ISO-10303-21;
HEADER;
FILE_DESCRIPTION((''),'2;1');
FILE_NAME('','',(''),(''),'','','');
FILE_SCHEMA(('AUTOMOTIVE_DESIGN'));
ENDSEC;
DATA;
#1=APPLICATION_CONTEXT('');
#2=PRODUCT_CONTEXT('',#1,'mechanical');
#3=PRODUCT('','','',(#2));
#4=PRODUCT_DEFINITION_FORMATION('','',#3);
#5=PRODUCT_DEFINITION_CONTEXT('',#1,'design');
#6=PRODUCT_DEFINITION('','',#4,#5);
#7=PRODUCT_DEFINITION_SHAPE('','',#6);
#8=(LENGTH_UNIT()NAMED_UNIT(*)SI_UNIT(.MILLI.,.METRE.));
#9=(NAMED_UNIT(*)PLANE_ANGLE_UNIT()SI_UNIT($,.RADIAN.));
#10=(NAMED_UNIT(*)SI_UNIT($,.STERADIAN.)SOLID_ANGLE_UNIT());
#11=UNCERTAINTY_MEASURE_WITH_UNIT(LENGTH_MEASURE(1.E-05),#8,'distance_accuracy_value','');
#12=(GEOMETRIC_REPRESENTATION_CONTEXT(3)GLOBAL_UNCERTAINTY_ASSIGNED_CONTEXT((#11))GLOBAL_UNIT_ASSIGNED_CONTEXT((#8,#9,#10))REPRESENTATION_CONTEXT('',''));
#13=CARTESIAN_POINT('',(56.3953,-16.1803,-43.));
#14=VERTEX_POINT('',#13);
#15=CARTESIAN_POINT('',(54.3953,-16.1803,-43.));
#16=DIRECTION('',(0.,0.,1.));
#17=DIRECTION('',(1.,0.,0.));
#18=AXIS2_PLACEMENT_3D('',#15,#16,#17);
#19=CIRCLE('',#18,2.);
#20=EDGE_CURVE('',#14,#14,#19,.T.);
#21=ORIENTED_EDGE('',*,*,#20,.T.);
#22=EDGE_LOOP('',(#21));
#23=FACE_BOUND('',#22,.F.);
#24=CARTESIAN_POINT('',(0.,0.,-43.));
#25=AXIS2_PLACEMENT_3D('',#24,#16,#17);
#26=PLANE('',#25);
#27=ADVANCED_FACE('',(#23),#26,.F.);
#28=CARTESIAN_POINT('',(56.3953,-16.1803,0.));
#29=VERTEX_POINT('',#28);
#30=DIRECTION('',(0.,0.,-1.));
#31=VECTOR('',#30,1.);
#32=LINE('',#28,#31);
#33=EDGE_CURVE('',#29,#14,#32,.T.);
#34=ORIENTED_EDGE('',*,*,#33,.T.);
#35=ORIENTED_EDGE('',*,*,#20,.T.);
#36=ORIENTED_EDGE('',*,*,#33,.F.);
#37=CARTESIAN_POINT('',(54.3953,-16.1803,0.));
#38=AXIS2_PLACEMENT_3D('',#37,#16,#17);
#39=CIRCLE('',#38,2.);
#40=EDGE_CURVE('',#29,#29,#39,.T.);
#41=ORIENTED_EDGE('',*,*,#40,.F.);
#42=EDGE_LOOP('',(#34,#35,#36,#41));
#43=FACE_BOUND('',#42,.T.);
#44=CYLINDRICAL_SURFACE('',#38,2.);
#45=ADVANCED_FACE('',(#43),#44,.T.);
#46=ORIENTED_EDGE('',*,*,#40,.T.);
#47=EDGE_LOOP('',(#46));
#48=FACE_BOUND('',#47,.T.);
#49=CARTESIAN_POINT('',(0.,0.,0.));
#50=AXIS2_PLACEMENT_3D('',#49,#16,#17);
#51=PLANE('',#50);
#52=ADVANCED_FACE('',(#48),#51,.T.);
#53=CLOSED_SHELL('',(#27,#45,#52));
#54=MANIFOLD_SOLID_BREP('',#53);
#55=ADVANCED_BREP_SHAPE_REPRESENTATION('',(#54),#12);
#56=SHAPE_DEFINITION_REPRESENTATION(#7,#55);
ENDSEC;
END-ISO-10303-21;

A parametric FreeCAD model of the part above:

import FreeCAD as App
import Part
import Sketcher

V = App.Vector
Q = App.Units.Quantity

doc = App.newDocument("Part")
body = doc.addObject("PartDesign::Body", "Body")

# Sketch on XY plane
sketch1 = body.newObject("Sketcher::SketchObject", "Sketch")
sketch1.AttachmentSupport = (doc.getObject("XY_Plane"), [""])
sketch1.MapMode = "FlatFace"
sketch1.addGeometry(Part.Circle(V(54.4, -16.2, 0), V(0, 0, 1), 2), False)
sketch1.addConstraint(Sketcher.Constraint("Diameter", 0, Q("4 mm")))
sketch1.addConstraint(Sketcher.Constraint("DistanceX", -1, 1, 0, 3, Q("54.3953 mm")))
sketch1.addConstraint(Sketcher.Constraint("DistanceY", 0, 3, -1, 1, Q("16.1803 mm")))
pad1 = body.newObject("PartDesign::Pad", "Pad")
pad1.Profile = sketch1
pad1.Length = 43
pad1.Reversed = True

doc.recompute()
